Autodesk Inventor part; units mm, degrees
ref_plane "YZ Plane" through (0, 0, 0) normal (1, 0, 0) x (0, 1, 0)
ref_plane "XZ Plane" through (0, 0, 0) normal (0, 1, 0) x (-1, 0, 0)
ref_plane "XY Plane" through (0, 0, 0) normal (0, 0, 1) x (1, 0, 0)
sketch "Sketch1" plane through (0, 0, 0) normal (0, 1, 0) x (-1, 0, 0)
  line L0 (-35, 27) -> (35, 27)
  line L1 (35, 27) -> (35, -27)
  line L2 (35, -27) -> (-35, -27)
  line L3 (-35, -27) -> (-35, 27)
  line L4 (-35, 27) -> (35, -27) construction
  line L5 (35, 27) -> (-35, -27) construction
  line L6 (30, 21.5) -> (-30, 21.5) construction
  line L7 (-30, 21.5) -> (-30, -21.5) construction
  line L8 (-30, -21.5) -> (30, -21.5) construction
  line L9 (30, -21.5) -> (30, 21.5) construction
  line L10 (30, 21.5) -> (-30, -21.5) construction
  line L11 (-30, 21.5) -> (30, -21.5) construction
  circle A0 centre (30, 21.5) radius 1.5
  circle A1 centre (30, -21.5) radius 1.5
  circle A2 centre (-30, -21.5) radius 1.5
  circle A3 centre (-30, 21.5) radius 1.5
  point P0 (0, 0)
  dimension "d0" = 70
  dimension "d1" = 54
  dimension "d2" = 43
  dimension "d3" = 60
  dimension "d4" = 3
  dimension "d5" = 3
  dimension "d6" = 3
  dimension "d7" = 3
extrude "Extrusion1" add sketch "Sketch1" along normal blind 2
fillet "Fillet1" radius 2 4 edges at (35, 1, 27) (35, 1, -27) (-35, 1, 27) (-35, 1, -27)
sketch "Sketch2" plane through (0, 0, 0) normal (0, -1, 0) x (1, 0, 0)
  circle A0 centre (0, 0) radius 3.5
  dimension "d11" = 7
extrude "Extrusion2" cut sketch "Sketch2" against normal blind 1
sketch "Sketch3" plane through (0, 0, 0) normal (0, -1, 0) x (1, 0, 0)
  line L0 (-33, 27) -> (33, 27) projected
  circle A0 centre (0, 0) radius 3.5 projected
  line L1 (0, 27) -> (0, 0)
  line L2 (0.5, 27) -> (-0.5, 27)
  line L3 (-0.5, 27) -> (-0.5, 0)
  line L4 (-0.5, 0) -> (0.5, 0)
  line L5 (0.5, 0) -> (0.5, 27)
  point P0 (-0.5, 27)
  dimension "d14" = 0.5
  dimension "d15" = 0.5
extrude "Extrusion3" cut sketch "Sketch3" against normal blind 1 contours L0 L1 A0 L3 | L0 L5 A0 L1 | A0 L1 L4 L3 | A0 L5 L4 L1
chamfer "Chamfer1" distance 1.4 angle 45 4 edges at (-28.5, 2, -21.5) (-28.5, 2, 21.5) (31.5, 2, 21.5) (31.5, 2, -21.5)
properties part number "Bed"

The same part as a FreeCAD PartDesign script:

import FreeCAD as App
import Part
import Sketcher
from FreeCAD import Vector


def edges_at(feature, points):
    """Names of the edges that pass closest to the given points."""
    edges = feature.Shape.Edges
    near = lambda p: min(range(len(edges)), key=lambda i: edges[i].distToShape(Part.Vertex(*p))[0])
    return sorted({f"Edge{near(p) + 1}" for p in points})


def add_polygon(sketch, points):
    """Adds a closed chain of lines whose ends are joined by coincident constraints."""
    first, n = sketch.GeometryCount, len(points)
    for a, b in zip(points, points[1:] + points[:1]):
        sketch.addGeometry(Part.LineSegment(App.Vector(*a, 0), App.Vector(*b, 0)), False)
    for i in range(n):
        sketch.addConstraint(Sketcher.Constraint("Coincident", first + i, 2, first + (i + 1) % n, 1))

doc = App.newDocument("Part")
params = doc.addObject("Spreadsheet::Sheet", "Params")
for row, (alias, value) in enumerate([
    ("sketch1_diameter", "3 mm"),
    ("sketch1_width", "70 mm"),
    ("sketch1_height", "54 mm"),
    ("pad1_length", "2 mm"),
    ("fillet_radius", "2 mm"),
    ("sketch2_diameter", "7 mm"),
    ("pocket1_length", "1 mm"),
    ("sketch3_height", "27 mm"),
    ("pocket2_length", "1 mm"),
    ("chamfer_size", "1.4 mm"),
], start=1):
    params.set(f"A{row}", alias)
    params.set(f"B{row}", "=" + value)
    params.setAlias(f"B{row}", alias)

body = doc.addObject("PartDesign::Body", "Body")

sketch1 = doc.addObject("Sketcher::SketchObject", "Sketch")
body.addObject(sketch1)
sketch1.AttachmentSupport = (doc.XZ_Plane, [""])
sketch1.MapMode = "FlatFace"
add_polygon(sketch1, [(-35, 27), (35, 27), (35, -27), (-35, -27)])
sketch1.addGeometry(Part.Circle(Vector(30, -21.5, 0), Vector(0, 0, 1), 1.5), False)
sketch1.addGeometry(Part.Circle(Vector(-30, -21.5, 0), Vector(0, 0, 1), 1.5), False)
sketch1.addGeometry(Part.Circle(Vector(30, 21.5, 0), Vector(0, 0, 1), 1.5), False)
sketch1.addGeometry(Part.Circle(Vector(-30, 21.5, 0), Vector(0, 0, 1), 1.5), False)
sketch1.addConstraint([
    Sketcher.Constraint("Horizontal", 0),
    Sketcher.Constraint("Vertical", 1),
    Sketcher.Constraint("Horizontal", 2),
    Sketcher.Constraint("Vertical", 3),
    Sketcher.Constraint("Equal", 4, 5),
    Sketcher.Constraint("Equal", 5, 6),
    Sketcher.Constraint("Equal", 6, 7),
    Sketcher.Constraint("Symmetric", 5, 3, 6, 3, -1, 1),
    Sketcher.Constraint("Symmetric", 4, 3, 7, 3, -1, 1),
    Sketcher.Constraint("Symmetric", 0, 2, 2, 2, -1, 1),
    Sketcher.Constraint("Symmetric", 4, 3, 5, 3, -2),
    Sketcher.Constraint("Diameter", 4, 3.0),
    Sketcher.Constraint("DistanceX", 0, 1, 0, 2, 70.0),
    Sketcher.Constraint("DistanceY", 1, 2, 1, 1, 54.0),
    Sketcher.Constraint("DistanceX", 5, 3, 4, 3, 60.0),
    Sketcher.Constraint("DistanceY", 4, 3, 6, 3, 43.0),
])
sketch1.setExpression("Constraints[15]", "Params.sketch1_diameter")
sketch1.setExpression("Constraints[16]", "Params.sketch1_width")
sketch1.setExpression("Constraints[17]", "Params.sketch1_height")
pad1 = doc.addObject("PartDesign::Pad", "Pad")
body.addObject(pad1)
pad1.Profile = sketch1
pad1.setExpression("Length", "Params.pad1_length")
pad1.Reversed = True
doc.recompute()

fillet = doc.addObject("PartDesign::Fillet", "Fillet")
body.addObject(fillet)
fillet.Base = (pad1, edges_at(pad1, [
    (35, 1, 27),
    (35, 1, -27),
    (-35, 1, 27),
    (-35, 1, -27),
]))
fillet.setExpression("Radius", "Params.fillet_radius")

sketch2 = doc.addObject("Sketcher::SketchObject", "Sketch001")
body.addObject(sketch2)
sketch2.AttachmentSupport = (doc.XZ_Plane, [""])
sketch2.MapMode = "FlatFace"
sketch2.addGeometry(Part.Circle(Vector(0, 0, 0), Vector(0, 0, 1), 3.5), False)
sketch2.addConstraint([
    Sketcher.Constraint("Coincident", 0, 3, -1, 1),
    Sketcher.Constraint("Diameter", 0, 7.0),
])
sketch2.setExpression("Constraints[1]", "Params.sketch2_diameter")
pocket1 = doc.addObject("PartDesign::Pocket", "Pocket")
body.addObject(pocket1)
pocket1.Profile = sketch2
pocket1.setExpression("Length", "Params.pocket1_length")

sketch3 = doc.addObject("Sketcher::SketchObject", "Sketch002")
body.addObject(sketch3)
sketch3.AttachmentSupport = (doc.XZ_Plane, [""])
sketch3.MapMode = "FlatFace"
add_polygon(sketch3, [(-0.5, 27), (-0.5, 0), (0.5, 0), (0.5, 27)])
sketch3.addConstraint([
    Sketcher.Constraint("Vertical", 0),
    Sketcher.Constraint("Horizontal", 1),
    Sketcher.Constraint("Vertical", 2),
    Sketcher.Constraint("Horizontal", 3),
    Sketcher.Constraint("Symmetric", 0, 2, 1, 2, -1, 1),
    Sketcher.Constraint("DistanceX", 0, 2, -1, 1, 0.5),
    Sketcher.Constraint("DistanceY", 0, 2, 0, 1, 27.0),
])
sketch3.setExpression("Constraints[10]", "Params.sketch3_height")
pocket2 = doc.addObject("PartDesign::Pocket", "Pocket001")
body.addObject(pocket2)
pocket2.Profile = sketch3
pocket2.setExpression("Length", "Params.pocket2_length")
doc.recompute()

chamfer = doc.addObject("PartDesign::Chamfer", "Chamfer")
body.addObject(chamfer)
chamfer.Base = (pocket2, edges_at(pocket2, [
    (-28.5, 2, -21.5),
    (-28.5, 2, 21.5),
    (31.5, 2, 21.5),
    (31.5, 2, -21.5),
]))
chamfer.setExpression("Size", "Params.chamfer_size")

doc.recompute()
